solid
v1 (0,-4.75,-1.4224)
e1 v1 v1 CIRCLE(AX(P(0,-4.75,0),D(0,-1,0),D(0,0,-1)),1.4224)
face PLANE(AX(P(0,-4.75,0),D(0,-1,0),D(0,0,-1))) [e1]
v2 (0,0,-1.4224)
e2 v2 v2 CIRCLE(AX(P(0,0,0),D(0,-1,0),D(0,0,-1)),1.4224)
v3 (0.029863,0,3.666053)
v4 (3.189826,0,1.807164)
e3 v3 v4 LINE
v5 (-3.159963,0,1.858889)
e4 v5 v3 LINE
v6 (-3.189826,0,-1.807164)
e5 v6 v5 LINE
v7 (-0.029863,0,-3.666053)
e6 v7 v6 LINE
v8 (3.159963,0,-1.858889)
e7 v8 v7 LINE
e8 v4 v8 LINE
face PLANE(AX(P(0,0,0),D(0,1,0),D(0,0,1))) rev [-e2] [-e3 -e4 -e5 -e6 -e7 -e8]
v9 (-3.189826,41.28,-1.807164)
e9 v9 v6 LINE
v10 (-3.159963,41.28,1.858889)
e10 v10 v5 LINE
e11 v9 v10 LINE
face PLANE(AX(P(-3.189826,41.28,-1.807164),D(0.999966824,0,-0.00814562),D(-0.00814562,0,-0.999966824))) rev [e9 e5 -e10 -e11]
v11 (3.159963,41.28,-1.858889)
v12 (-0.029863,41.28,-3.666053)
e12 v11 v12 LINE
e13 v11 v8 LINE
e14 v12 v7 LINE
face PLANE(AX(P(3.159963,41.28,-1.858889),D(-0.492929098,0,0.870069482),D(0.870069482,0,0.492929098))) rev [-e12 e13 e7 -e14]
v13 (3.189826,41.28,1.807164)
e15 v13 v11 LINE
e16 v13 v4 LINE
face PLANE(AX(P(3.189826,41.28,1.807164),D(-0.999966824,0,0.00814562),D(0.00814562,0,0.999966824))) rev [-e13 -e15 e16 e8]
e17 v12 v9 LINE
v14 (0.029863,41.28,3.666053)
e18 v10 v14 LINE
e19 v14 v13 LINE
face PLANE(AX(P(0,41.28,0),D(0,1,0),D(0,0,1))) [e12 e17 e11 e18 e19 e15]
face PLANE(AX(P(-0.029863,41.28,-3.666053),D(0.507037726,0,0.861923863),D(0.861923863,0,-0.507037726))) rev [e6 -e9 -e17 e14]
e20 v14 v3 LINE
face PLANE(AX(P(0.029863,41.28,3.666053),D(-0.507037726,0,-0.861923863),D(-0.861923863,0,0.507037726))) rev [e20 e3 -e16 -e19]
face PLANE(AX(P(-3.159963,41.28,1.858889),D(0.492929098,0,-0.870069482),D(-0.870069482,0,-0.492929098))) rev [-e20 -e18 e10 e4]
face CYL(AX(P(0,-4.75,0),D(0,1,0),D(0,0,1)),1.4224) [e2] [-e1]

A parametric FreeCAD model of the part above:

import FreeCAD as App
import Part
import Sketcher

V = App.Vector
Q = App.Units.Quantity


def add_polygon(sketch, points):
    """Adds a closed chain of lines whose ends are joined by coincident constraints."""
    first, n = sketch.GeometryCount, len(points)
    for a, b in zip(points, points[1:] + points[:1]):
        sketch.addGeometry(Part.LineSegment(App.Vector(*a, 0), App.Vector(*b, 0)), False)
    for i in range(n):
        sketch.addConstraint(Sketcher.Constraint("Coincident", first + i, 2, first + (i + 1) % n, 1))

doc = App.newDocument("Part")
body = doc.addObject("PartDesign::Body", "Body")

sketch1 = body.newObject("Sketcher::SketchObject", "Sketch")
sketch1.AttachmentSupport = (doc.getObject("XZ_Plane"), [""])
sketch1.MapMode = "FlatFace"
add_polygon(sketch1, [(3.2, 1.8), (3.2, -1.9), (0, -3.7), (-3.2, -1.8), (-3.2, 1.9), (0, 3.7)])
sketch1.addConstraint([
    Sketcher.Constraint("Symmetric", 0, 2, 3, 2, -1, 1),
    Sketcher.Constraint("Symmetric", 1, 2, 4, 2, -1, 1),
    Sketcher.Constraint("Symmetric", 2, 2, 5, 2, -1, 1),
    Sketcher.Constraint("Equal", 0, 1),
    Sketcher.Constraint("Equal", 1, 2),
    Sketcher.Constraint("DistanceX", 3, 2, 1, 2, 3.1301),
    Sketcher.Constraint("DistanceY", 0, 2, -1, 1, 1.858889),
    Sketcher.Constraint("DistanceY", 1, 2, 2, 2, 1.858889),
    Sketcher.Constraint("DistanceX", 2, 2, 0, 2, 6.349789),
])
pad1 = body.newObject("PartDesign::Pad", "Pad")
pad1.Profile = sketch1
pad1.Length = 41.28
pad1.Reversed = True

sketch2 = body.newObject("Sketcher::SketchObject", "Sketch001")
sketch2.AttachmentSupport = (doc.getObject("XZ_Plane"), [""])
sketch2.MapMode = "FlatFace"
sketch2.addGeometry(Part.Circle(V(0, 0, 0), V(0, 0, 1), 1.4), False)
sketch2.addConstraint([
    Sketcher.Constraint("Coincident", 0, 3, -1, 1),
    Sketcher.Constraint("Diameter", 0, Q("0.112 in")),
])
pad2 = body.newObject("PartDesign::Pad", "Pad001")
pad2.Profile = sketch2
pad2.Length = 4.75

doc.recompute()
